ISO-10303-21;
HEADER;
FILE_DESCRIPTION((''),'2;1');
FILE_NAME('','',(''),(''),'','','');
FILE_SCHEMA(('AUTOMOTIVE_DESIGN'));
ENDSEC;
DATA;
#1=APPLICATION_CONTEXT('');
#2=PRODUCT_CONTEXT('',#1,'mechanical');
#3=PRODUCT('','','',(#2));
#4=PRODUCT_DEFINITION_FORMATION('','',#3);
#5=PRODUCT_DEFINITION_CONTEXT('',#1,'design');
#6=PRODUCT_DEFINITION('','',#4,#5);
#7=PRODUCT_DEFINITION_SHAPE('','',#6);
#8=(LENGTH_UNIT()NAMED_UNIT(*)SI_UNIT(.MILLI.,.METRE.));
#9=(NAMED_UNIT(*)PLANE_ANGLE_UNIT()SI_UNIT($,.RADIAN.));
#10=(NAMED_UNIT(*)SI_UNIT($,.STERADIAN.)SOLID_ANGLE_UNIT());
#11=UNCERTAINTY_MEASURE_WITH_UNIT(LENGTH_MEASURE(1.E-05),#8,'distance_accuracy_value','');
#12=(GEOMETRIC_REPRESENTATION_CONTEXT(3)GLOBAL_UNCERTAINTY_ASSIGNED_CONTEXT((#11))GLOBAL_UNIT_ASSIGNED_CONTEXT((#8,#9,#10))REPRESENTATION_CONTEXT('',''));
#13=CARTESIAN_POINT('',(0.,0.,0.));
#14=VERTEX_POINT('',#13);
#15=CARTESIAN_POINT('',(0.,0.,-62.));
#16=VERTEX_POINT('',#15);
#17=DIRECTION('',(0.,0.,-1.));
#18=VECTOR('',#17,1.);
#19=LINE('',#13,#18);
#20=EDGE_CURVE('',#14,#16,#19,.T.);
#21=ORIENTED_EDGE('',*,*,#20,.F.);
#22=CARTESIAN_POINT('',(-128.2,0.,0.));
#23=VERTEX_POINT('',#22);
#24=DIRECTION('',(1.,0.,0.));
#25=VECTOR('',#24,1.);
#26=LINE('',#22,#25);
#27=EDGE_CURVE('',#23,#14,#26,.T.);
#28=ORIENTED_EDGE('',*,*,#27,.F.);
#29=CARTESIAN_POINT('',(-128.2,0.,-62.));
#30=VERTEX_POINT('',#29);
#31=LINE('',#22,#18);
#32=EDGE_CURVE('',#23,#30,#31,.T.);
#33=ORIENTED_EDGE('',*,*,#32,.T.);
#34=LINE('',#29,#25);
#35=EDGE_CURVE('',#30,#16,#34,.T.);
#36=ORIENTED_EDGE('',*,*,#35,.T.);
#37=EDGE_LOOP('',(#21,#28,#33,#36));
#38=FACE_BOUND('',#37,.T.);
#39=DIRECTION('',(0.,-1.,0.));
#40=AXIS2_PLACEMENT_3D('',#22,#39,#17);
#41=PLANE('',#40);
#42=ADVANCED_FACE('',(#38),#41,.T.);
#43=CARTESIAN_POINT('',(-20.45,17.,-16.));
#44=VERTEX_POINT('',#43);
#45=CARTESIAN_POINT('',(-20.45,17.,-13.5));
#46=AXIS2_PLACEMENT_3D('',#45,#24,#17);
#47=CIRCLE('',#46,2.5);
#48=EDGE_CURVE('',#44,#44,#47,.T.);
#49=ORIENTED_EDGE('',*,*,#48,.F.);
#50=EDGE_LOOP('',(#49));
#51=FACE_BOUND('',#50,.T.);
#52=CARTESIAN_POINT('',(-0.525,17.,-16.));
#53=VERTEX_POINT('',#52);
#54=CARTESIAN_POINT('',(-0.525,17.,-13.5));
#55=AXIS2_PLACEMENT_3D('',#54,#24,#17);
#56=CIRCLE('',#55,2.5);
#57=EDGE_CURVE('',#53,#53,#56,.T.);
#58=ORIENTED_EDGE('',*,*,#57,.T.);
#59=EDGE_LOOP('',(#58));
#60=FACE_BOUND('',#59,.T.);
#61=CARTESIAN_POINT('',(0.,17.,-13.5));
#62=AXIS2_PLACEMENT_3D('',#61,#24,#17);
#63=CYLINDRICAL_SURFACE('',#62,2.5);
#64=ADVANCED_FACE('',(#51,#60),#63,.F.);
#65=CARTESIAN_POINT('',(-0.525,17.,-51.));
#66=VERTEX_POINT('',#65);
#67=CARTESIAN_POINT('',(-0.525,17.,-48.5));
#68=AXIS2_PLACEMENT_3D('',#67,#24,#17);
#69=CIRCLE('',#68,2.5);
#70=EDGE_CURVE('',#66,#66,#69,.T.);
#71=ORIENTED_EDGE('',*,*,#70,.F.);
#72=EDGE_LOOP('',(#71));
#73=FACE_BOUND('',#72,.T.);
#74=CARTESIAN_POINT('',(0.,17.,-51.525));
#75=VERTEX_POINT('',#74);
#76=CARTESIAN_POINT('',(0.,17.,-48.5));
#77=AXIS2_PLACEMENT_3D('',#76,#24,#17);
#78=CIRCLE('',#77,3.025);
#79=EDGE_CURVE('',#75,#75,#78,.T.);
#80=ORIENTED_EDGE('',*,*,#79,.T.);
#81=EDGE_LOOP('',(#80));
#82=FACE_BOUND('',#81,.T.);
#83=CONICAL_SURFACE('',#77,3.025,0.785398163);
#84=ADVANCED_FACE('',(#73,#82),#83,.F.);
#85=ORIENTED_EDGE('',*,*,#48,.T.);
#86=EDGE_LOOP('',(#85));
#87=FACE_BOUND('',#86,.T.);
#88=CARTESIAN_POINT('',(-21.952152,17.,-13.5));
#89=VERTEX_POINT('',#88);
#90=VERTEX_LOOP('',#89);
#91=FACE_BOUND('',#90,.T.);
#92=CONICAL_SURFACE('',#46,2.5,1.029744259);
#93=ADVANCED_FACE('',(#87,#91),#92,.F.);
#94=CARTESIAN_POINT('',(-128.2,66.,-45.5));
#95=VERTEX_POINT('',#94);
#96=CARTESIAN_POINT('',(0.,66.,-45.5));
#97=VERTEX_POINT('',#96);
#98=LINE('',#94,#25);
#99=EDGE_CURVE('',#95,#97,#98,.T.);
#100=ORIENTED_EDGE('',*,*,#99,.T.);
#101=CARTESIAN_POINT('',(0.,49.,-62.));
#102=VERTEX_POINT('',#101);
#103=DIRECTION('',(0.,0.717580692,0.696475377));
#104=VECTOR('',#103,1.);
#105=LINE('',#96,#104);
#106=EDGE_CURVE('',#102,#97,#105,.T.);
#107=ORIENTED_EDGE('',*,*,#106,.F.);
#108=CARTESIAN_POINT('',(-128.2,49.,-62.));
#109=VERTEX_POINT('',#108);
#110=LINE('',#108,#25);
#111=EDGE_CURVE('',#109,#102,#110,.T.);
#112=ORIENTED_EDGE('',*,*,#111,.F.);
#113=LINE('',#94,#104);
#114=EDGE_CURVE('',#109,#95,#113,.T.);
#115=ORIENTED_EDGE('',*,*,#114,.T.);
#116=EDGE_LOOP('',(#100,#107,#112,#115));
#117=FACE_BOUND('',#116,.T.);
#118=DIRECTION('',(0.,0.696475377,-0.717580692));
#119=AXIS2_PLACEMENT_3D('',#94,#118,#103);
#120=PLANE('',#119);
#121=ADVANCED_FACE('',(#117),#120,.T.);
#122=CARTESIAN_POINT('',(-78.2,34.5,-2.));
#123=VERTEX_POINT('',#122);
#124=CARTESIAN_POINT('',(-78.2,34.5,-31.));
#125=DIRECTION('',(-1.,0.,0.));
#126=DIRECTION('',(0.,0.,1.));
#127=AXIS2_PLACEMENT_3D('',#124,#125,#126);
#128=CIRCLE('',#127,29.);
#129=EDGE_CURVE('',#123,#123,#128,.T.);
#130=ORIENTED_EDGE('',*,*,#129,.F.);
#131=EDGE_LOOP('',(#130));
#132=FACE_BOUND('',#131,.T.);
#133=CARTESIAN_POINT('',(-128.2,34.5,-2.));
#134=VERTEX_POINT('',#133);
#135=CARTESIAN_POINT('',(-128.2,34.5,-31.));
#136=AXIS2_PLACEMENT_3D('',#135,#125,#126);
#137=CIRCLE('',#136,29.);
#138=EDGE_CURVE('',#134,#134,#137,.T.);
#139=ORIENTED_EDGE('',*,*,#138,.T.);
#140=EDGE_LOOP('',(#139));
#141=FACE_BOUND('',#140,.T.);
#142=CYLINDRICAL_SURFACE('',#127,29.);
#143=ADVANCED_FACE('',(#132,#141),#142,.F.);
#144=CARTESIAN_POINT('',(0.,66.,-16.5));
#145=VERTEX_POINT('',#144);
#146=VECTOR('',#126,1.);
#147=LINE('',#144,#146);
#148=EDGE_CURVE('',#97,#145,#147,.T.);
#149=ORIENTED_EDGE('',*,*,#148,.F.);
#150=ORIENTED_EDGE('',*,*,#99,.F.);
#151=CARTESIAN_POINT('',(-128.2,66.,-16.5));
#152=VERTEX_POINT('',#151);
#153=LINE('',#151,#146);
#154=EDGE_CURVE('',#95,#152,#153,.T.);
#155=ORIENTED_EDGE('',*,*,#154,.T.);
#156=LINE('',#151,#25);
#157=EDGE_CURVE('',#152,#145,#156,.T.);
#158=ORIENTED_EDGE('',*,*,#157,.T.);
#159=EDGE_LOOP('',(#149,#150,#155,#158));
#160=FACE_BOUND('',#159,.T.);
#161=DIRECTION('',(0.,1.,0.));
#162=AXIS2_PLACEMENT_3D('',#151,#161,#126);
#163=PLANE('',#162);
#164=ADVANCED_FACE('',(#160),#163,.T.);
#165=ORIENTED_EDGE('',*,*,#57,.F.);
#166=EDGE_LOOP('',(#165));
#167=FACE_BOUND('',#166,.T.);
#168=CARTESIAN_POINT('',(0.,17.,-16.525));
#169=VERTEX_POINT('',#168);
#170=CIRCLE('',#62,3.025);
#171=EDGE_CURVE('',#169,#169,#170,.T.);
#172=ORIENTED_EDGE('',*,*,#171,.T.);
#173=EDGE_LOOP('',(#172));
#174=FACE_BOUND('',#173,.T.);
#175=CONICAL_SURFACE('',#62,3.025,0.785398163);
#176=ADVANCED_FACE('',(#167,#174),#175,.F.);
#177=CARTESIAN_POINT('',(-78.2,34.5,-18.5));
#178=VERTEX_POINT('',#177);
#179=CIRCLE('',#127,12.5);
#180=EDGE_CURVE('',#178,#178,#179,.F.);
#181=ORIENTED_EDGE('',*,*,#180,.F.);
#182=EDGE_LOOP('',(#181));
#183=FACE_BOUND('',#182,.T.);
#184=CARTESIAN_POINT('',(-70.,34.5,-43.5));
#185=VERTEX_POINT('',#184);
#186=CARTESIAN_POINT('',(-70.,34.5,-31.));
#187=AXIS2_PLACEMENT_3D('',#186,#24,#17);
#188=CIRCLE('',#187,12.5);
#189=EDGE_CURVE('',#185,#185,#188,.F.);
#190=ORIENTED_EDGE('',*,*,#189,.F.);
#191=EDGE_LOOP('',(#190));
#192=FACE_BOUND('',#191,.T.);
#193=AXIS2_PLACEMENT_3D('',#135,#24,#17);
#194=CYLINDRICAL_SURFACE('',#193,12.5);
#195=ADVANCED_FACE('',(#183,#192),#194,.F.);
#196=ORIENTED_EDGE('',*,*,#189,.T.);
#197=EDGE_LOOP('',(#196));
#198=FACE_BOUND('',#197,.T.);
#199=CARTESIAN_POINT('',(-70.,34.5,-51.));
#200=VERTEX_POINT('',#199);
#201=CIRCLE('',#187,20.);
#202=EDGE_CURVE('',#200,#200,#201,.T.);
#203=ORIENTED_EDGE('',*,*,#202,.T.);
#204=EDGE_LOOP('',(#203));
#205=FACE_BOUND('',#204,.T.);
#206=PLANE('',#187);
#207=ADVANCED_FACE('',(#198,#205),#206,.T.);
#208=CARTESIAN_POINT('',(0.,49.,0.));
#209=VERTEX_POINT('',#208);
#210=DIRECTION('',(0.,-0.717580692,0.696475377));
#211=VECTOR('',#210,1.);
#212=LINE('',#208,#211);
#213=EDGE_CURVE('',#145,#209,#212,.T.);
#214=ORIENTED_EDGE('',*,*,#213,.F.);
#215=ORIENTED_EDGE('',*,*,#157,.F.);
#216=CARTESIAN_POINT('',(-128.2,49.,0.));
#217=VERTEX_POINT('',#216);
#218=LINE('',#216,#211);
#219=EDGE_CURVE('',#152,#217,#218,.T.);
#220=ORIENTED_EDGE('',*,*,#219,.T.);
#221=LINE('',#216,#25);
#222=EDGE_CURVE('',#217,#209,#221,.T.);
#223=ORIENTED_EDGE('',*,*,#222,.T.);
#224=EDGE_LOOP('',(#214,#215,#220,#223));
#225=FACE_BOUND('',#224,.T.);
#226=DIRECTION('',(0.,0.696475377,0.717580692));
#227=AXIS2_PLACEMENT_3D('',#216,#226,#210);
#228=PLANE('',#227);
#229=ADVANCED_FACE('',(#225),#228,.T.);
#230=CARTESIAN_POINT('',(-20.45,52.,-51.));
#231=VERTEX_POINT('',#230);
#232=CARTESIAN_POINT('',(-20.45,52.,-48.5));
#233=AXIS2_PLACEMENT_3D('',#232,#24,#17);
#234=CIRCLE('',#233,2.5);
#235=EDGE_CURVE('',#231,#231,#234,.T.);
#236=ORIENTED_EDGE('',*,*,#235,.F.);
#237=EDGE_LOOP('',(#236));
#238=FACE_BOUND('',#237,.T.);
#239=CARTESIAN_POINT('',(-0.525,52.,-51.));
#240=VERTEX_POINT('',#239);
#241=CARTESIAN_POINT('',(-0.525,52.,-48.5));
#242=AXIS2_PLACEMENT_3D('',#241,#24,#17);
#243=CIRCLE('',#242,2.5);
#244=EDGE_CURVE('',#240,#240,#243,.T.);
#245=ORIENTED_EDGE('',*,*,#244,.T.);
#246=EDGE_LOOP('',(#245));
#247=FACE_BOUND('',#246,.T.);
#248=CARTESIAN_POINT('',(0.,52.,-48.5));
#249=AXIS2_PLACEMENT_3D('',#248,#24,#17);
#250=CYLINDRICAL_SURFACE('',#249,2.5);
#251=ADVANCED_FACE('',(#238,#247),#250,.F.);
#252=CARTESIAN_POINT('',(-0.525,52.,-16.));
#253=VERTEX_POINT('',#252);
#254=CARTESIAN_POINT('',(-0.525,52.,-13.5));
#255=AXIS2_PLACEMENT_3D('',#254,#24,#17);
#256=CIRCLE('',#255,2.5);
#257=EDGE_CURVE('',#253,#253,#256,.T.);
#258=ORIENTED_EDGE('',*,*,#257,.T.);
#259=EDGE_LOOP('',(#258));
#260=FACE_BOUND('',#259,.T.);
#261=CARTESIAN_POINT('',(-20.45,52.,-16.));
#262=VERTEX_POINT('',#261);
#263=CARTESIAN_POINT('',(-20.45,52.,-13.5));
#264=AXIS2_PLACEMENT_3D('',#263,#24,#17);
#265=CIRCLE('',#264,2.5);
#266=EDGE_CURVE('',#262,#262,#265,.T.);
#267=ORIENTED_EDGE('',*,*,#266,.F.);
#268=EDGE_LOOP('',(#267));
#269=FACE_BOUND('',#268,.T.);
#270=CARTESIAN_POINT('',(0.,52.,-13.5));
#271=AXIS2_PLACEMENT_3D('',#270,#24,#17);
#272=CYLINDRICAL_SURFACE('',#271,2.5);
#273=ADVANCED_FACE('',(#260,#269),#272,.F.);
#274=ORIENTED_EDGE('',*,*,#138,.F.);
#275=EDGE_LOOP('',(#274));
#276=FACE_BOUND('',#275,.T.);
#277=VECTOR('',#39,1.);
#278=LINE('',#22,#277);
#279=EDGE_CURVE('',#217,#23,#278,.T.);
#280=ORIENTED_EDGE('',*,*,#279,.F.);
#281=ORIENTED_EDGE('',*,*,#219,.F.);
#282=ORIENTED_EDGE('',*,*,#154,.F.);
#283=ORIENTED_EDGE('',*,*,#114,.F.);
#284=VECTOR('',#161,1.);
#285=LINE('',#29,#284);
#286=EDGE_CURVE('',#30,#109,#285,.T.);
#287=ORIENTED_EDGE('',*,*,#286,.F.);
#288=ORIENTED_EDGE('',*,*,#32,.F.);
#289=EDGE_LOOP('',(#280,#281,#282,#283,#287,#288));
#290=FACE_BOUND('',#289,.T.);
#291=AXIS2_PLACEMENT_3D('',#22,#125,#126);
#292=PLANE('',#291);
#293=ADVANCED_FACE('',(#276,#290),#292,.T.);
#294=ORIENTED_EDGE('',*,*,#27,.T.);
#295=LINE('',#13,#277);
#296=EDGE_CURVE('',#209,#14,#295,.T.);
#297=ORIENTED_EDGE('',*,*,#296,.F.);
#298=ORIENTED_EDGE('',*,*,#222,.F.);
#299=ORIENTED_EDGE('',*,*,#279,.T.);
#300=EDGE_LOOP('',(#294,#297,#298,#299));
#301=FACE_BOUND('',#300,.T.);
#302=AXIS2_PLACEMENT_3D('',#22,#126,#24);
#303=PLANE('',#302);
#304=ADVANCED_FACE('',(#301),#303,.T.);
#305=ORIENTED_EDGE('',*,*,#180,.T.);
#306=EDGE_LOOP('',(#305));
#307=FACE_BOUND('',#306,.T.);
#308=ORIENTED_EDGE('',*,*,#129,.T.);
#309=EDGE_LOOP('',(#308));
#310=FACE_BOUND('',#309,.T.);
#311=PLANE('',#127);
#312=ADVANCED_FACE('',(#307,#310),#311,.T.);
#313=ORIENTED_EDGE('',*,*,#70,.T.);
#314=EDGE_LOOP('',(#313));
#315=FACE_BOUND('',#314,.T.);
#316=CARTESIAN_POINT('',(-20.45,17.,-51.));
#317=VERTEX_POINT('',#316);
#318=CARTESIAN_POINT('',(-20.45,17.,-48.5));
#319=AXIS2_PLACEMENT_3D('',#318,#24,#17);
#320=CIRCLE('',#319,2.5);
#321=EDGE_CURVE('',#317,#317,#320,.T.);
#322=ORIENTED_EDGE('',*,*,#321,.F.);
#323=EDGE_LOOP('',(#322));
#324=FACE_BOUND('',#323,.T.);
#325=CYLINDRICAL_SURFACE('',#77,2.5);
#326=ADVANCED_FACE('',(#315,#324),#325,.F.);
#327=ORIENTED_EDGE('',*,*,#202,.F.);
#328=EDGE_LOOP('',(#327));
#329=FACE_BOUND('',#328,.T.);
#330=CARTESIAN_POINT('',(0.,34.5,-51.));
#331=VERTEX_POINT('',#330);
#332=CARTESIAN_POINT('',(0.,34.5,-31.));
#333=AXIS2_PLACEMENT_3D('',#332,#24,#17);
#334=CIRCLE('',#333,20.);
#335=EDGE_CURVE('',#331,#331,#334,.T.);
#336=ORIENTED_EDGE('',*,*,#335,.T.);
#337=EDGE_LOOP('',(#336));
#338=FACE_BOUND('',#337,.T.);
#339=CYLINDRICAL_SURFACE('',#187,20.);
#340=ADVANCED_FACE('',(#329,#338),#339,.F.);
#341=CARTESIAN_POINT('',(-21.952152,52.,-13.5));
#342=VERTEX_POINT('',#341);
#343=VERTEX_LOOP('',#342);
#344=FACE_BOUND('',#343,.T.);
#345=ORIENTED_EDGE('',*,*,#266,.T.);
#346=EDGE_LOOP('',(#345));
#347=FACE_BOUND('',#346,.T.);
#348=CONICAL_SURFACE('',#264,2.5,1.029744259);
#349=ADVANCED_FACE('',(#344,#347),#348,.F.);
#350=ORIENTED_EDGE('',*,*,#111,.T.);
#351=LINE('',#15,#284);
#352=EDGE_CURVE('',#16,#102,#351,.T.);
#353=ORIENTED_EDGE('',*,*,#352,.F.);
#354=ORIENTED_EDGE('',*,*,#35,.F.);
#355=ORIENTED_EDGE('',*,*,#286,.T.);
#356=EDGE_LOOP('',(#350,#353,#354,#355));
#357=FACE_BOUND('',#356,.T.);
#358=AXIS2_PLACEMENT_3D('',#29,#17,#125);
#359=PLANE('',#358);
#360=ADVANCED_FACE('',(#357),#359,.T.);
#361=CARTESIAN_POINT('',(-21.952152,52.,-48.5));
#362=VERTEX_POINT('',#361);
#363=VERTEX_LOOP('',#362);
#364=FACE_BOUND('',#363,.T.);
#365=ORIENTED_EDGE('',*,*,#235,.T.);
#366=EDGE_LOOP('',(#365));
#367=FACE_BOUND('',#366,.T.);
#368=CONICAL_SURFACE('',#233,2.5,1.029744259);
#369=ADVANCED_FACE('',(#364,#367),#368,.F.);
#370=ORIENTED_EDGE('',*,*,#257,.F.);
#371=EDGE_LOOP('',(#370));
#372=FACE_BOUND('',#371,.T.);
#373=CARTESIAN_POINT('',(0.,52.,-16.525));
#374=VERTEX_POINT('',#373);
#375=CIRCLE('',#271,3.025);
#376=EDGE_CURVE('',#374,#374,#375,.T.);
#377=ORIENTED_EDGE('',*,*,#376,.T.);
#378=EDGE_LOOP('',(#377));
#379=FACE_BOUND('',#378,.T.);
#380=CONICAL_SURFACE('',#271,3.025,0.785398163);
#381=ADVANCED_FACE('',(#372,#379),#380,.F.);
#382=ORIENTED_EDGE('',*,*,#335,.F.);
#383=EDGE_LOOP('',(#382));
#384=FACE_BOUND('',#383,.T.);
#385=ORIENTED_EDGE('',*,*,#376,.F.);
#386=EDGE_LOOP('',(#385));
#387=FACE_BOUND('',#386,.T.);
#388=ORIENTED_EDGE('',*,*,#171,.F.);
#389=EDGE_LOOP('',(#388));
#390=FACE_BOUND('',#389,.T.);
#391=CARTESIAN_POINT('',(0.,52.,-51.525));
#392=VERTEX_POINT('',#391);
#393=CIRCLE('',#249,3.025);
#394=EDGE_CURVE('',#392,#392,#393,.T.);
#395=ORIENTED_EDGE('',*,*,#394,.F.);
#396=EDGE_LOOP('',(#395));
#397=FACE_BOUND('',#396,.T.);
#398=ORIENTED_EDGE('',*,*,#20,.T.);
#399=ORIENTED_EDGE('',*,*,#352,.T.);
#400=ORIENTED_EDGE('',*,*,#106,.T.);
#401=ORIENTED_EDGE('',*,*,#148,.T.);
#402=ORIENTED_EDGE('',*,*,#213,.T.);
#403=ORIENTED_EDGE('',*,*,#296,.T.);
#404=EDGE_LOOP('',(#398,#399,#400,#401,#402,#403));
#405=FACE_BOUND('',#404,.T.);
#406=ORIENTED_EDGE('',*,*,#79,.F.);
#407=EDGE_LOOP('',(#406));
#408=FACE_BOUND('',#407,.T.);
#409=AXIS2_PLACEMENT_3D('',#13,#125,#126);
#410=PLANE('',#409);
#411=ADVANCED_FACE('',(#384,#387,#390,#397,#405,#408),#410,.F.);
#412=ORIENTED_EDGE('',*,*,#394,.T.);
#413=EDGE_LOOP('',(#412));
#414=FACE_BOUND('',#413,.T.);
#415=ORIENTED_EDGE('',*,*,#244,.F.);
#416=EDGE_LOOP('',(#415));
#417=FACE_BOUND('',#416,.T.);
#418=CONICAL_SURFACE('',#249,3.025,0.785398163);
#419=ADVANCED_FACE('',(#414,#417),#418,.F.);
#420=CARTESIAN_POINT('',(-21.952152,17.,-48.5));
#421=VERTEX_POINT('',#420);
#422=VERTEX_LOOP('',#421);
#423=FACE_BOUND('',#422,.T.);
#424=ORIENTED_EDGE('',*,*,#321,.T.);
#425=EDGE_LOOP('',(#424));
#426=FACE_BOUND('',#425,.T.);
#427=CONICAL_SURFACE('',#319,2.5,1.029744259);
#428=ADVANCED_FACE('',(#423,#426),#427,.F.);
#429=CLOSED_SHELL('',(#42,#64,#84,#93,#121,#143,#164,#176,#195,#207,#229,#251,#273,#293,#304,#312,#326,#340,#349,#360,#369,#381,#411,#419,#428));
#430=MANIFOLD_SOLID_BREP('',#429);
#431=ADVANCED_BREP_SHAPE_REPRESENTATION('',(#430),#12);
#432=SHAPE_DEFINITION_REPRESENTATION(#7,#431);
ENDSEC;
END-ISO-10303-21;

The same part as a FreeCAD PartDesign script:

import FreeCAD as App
import Part
import Sketcher
Q = App.Units.Quantity

doc = App.newDocument("Part")
body = doc.addObject("PartDesign::Body", "Body")

sketch1 = body.newObject("Sketcher::SketchObject", "Sketch")
sketch1.AttachmentSupport = (doc.getObject("YZ_Plane"), [""])
sketch1.MapMode = "FlatFace"
sketch1.addGeometry([
    Part.LineSegment(App.Vector(66, -16.5, 0), App.Vector(49, 0, 0)),
    Part.LineSegment(App.Vector(49, 0, 0), App.Vector(0, 0, 0)),
    Part.LineSegment(App.Vector(0, 0, 0), App.Vector(0, -62, 0)),
    Part.LineSegment(App.Vector(0, -62, 0), App.Vector(49, -62, 0)),
    Part.LineSegment(App.Vector(49, -62, 0), App.Vector(66, -45.5, 0)),
    Part.LineSegment(App.Vector(66, -45.5, 0), App.Vector(66, -16.5, 0)),
], False)
sketch1.addConstraint([
    Sketcher.Constraint("Coincident", 0, 2, 1, 1),
    Sketcher.Constraint("Coincident", 1, 2, 2, 1),
    Sketcher.Constraint("Coincident", 2, 2, 3, 1),
    Sketcher.Constraint("Coincident", 3, 2, 4, 1),
    Sketcher.Constraint("Coincident", 4, 2, 5, 1),
    Sketcher.Constraint("Coincident", 5, 2, 0, 1),
    Sketcher.Constraint("Horizontal", 1),
    Sketcher.Constraint("Vertical", 2),
    Sketcher.Constraint("Horizontal", 3),
    Sketcher.Constraint("Vertical", 5),
    Sketcher.Constraint("Coincident", 1, 2, -1, 1),
    Sketcher.Constraint("Vertical", 0, 2, 3, 2),
    Sketcher.Constraint("Equal", 0, 4),
    Sketcher.Constraint("DistanceX", 1, 2, 1, 1, Q("49 mm")),
    Sketcher.Constraint("DistanceY", 2, 2, 2, 1, Q("62 mm")),
    Sketcher.Constraint("DistanceY", 5, 1, 5, 2, Q("29 mm")),
    Sketcher.Constraint("DistanceX", -1, 1, 4, 2, Q("66 mm")),
])
pad1 = body.newObject("PartDesign::Pad", "Pad")
pad1.Profile = sketch1
pad1.Length = 128.2
pad1.Reversed = True

sketch2 = body.newObject("Sketcher::SketchObject", "Sketch001")
sketch2.AttachmentSupport = (doc.getObject("YZ_Plane"), [""])
sketch2.MapMode = "FlatFace"
sketch2.addGeometry([
    Part.Circle(App.Vector(52, -13.5, 0), App.Vector(0, 0, 1), 2.5),
    Part.Circle(App.Vector(52, -48.5, 0), App.Vector(0, 0, 1), 2.5),
    Part.Circle(App.Vector(17, -48.5, 0), App.Vector(0, 0, 1), 2.5),
    Part.Circle(App.Vector(17, -13.5, 0), App.Vector(0, 0, 1), 2.5),
], False)
sketch2.addConstraint([
    Sketcher.Constraint("Equal", 0, 1),
    Sketcher.Constraint("Equal", 1, 2),
    Sketcher.Constraint("Equal", 2, 3),
    Sketcher.Constraint("Horizontal", 1, 3, 2, 3),
    Sketcher.Constraint("Horizontal", 0, 3, 3, 3),
    Sketcher.Constraint("Vertical", 0, 3, 1, 3),
    Sketcher.Constraint("Vertical", 2, 3, 3, 3),
    Sketcher.Constraint("Diameter", 0, Q("5 mm")),
    Sketcher.Constraint("DistanceX", -1, 1, 0, 3, Q("52 mm")),
    Sketcher.Constraint("DistanceX", -1, 1, 2, 3, Q("17 mm")),
    Sketcher.Constraint("DistanceY", 1, 3, 0, 3, Q("35 mm")),
    Sketcher.Constraint("DistanceY", 0, 3, -1, 1, Q("13.5 mm")),
])
doc.recompute()
hole = body.newObject("PartDesign::Hole", "Hole")
hole.Profile = sketch2
hole.ThreadType = "None"
hole.Diameter = 5
hole.DepthType = "Dimension"
hole.Depth = 20.45
hole.DrillPoint = "Angled"
hole.DrillPointAngle = 118
hole.HoleCutType = "Countersink"
hole.HoleCutDiameter = 6.05
hole.HoleCutCountersinkAngle = 90

sketch3 = body.newObject("Sketcher::SketchObject", "Sketch002")
sketch3.AttachmentSupport = (doc.getObject("YZ_Plane"), [""])
sketch3.MapMode = "FlatFace"
sketch3.addGeometry(Part.Circle(App.Vector(34.5, -31, 0), App.Vector(0, 0, 1), 12.5), False)
sketch3.addConstraint([
    Sketcher.Constraint("Diameter", 0, Q("25 mm")),
    Sketcher.Constraint("DistanceY", 0, 3, -1, 1, Q("31 mm")),
    Sketcher.Constraint("DistanceX", -1, 1, 0, 3, Q("34.5 mm")),
])
pocket1 = body.newObject("PartDesign::Pocket", "Pocket")
pocket1.Profile = sketch3
pocket1.Type = "ThroughAll"

sketch4 = body.newObject("Sketcher::SketchObject", "Sketch003")
sketch4.AttachmentSupport = (doc.getObject("YZ_Plane"), [""])
sketch4.MapMode = "FlatFace"
sketch4.AttachmentOffset = App.Placement(App.Vector(0, 0, -128.2), App.Rotation())
sketch4.addGeometry(Part.Circle(App.Vector(34.5, -31, 0), App.Vector(0, 0, 1), 29), False)
sketch4.addConstraint([
    Sketcher.Constraint("Diameter", 0, Q("58 mm")),
    Sketcher.Constraint("DistanceY", 0, 3, -1, 1, Q("31 mm")),
    Sketcher.Constraint("DistanceX", -1, 1, 0, 3, Q("34.5 mm")),
])
pocket2 = body.newObject("PartDesign::Pocket", "Pocket001")
pocket2.Profile = sketch4
pocket2.Length = 50
pocket2.Reversed = True

sketch5 = body.newObject("Sketcher::SketchObject", "Sketch004")
sketch5.AttachmentSupport = (doc.getObject("YZ_Plane"), [""])
sketch5.MapMode = "FlatFace"
sketch5.addGeometry(Part.Circle(App.Vector(34.5, -31, 0), App.Vector(0, 0, 1), 20), False)
sketch5.addConstraint([
    Sketcher.Constraint("Diameter", 0, Q("40 mm")),
    Sketcher.Constraint("DistanceY", 0, 3, -1, 1, Q("31 mm")),
    Sketcher.Constraint("DistanceX", -1, 1, 0, 3, Q("34.5 mm")),
])
pocket3 = body.newObject("PartDesign::Pocket", "Pocket002")
pocket3.Profile = sketch5
pocket3.Length = 70

doc.recompute()
